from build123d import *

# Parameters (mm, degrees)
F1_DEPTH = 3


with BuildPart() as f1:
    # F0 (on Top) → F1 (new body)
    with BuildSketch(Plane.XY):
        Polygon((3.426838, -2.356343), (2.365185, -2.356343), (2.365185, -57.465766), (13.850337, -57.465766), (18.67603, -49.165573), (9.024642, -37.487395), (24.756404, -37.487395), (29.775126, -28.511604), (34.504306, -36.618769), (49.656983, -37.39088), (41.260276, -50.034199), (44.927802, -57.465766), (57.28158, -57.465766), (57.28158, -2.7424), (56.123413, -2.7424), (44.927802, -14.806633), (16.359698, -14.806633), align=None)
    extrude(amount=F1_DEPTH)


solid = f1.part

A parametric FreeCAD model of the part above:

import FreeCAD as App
import Part
import Sketcher
from FreeCAD import Vector
Q = App.Units.Quantity

doc = App.newDocument("Part")
body = doc.addObject("PartDesign::Body", "Body")

sketch1 = doc.addObject("Sketcher::SketchObject", "Sketch")
body.addObject(sketch1)
sketch1.AttachmentSupport = (doc.XY_Plane, [""])
sketch1.MapMode = "FlatFace"
sketch1.addGeometry(Part.LineSegment(Vector(3.426838, -2.356343, 0), Vector(2.365185, -2.356343, 0)), False)
sketch1.addGeometry(Part.LineSegment(Vector(2.365185, -2.356343, 0), Vector(2.365185, -57.465766, 0)), False)
sketch1.addGeometry(Part.LineSegment(Vector(2.365185, -57.465766, 0), Vector(13.850337, -57.465766, 0)), False)
sketch1.addGeometry(Part.LineSegment(Vector(13.850337, -57.465766, 0), Vector(18.67603, -49.165573, 0)), False)
sketch1.addGeometry(Part.LineSegment(Vector(18.67603, -49.165573, 0), Vector(9.024642, -37.487395, 0)), False)
sketch1.addGeometry(Part.LineSegment(Vector(9.024642, -37.487395, 0), Vector(24.756404, -37.487395, 0)), False)
sketch1.addGeometry(Part.LineSegment(Vector(24.756404, -37.487395, 0), Vector(29.775126, -28.511604, 0)), False)
sketch1.addGeometry(Part.LineSegment(Vector(29.775126, -28.511604, 0), Vector(34.504306, -36.618769, 0)), False)
sketch1.addGeometry(Part.LineSegment(Vector(34.504306, -36.618769, 0), Vector(49.656983, -37.39088, 0)), False)
sketch1.addGeometry(Part.LineSegment(Vector(49.656983, -37.39088, 0), Vector(41.260276, -50.034199, 0)), False)
sketch1.addGeometry(Part.LineSegment(Vector(41.260276, -50.034199, 0), Vector(44.927802, -57.465766, 0)), False)
sketch1.addGeometry(Part.LineSegment(Vector(44.927802, -57.465766, 0), Vector(57.28158, -57.465766, 0)), False)
sketch1.addGeometry(Part.LineSegment(Vector(57.28158, -57.465766, 0), Vector(57.28158, -2.7424, 0)), False)
sketch1.addGeometry(Part.LineSegment(Vector(57.28158, -2.7424, 0), Vector(56.123413, -2.7424, 0)), False)
sketch1.addGeometry(Part.LineSegment(Vector(56.123413, -2.7424, 0), Vector(44.927802, -14.806633, 0)), False)
sketch1.addGeometry(Part.LineSegment(Vector(44.927802, -14.806633, 0), Vector(16.359698, -14.806633, 0)), False)
sketch1.addGeometry(Part.LineSegment(Vector(16.359698, -14.806633, 0), Vector(3.426838, -2.356343, 0)), False)
sketch1.addConstraint(Sketcher.Constraint("Coincident", 0, 2, 1, 1))
sketch1.addConstraint(Sketcher.Constraint("Coincident", 1, 2, 2, 1))
sketch1.addConstraint(Sketcher.Constraint("Coincident", 2, 2, 3, 1))
sketch1.addConstraint(Sketcher.Constraint("Coincident", 3, 2, 4, 1))
sketch1.addConstraint(Sketcher.Constraint("Coincident", 4, 2, 5, 1))
sketch1.addConstraint(Sketcher.Constraint("Coincident", 5, 2, 6, 1))
sketch1.addConstraint(Sketcher.Constraint("Coincident", 6, 2, 7, 1))
sketch1.addConstraint(Sketcher.Constraint("Coincident", 7, 2, 8, 1))
sketch1.addConstraint(Sketcher.Constraint("Coincident", 8, 2, 9, 1))
sketch1.addConstraint(Sketcher.Constraint("Coincident", 9, 2, 10, 1))
sketch1.addConstraint(Sketcher.Constraint("Coincident", 10, 2, 11, 1))
sketch1.addConstraint(Sketcher.Constraint("Coincident", 11, 2, 12, 1))
sketch1.addConstraint(Sketcher.Constraint("Coincident", 12, 2, 13, 1))
sketch1.addConstraint(Sketcher.Constraint("Coincident", 13, 2, 14, 1))
sketch1.addConstraint(Sketcher.Constraint("Coincident", 14, 2, 15, 1))
sketch1.addConstraint(Sketcher.Constraint("Coincident", 15, 2, 16, 1))
sketch1.addConstraint(Sketcher.Constraint("Coincident", 16, 2, 0, 1))
sketch1.addConstraint(Sketcher.Constraint("Horizontal", 0))
sketch1.addConstraint(Sketcher.Constraint("Vertical", 1))
sketch1.addConstraint(Sketcher.Constraint("Horizontal", 2))
sketch1.addConstraint(Sketcher.Constraint("Horizontal", 5))
sketch1.addConstraint(Sketcher.Constraint("Horizontal", 11))
sketch1.addConstraint(Sketcher.Constraint("Vertical", 12))
sketch1.addConstraint(Sketcher.Constraint("Horizontal", 13))
sketch1.addConstraint(Sketcher.Constraint("Horizontal", 15))
sketch1.addConstraint(Sketcher.Constraint("Horizontal", 2, 2, 10, 2))
sketch1.addConstraint(Sketcher.Constraint("Vertical", 10, 2, 14, 2))
sketch1.addConstraint(Sketcher.Constraint("Distance", 6, Q("10.283598 mm")))
sketch1.addConstraint(Sketcher.Constraint("DistanceX", 2, 1, 2, 2, Q("11.485152 mm")))
sketch1.addConstraint(Sketcher.Constraint("DistanceY", 9, 2, -1, 1, Q("50.034199 mm")))
sketch1.addConstraint(Sketcher.Constraint("DistanceY", 12, 2, -1, 1, Q("2.7424 mm")))
sketch1.addConstraint(Sketcher.Constraint("DistanceX", -1, 1, 15, 2, Q("16.359698 mm")))
sketch1.addConstraint(Sketcher.Constraint("DistanceX", 5, 2, 10, 2, Q("20.171398 mm")))
sketch1.addConstraint(Sketcher.Constraint("Distance", 3, Q("9.601069 mm")))
sketch1.addConstraint(Sketcher.Constraint("Distance", 4, Q("15.150219 mm")))
sketch1.addConstraint(Sketcher.Constraint("Distance", 14, Q("16.458658 mm")))
sketch1.addConstraint(Sketcher.Constraint("Distance", 16, Q("17.951841 mm")))
sketch1.addConstraint(Sketcher.Constraint("DistanceX", 0, 2, 0, 1, Q("1.061653 mm")))
sketch1.addConstraint(Sketcher.Constraint("DistanceX", 5, 1, 5, 2, Q("15.731762 mm")))
sketch1.addConstraint(Sketcher.Constraint("DistanceX", 11, 1, 11, 2, Q("12.353778 mm")))
sketch1.addConstraint(Sketcher.Constraint("DistanceX", 13, 2, 13, 1, Q("1.158167 mm")))
sketch1.addConstraint(Sketcher.Constraint("DistanceX", 15, 2, 15, 1, Q("28.568104 mm")))
sketch1.addConstraint(Sketcher.Constraint("DistanceY", 1, 2, 1, 1, Q("55.109423 mm")))
sketch1.addConstraint(Sketcher.Constraint("DistanceY", 12, 1, 12, 2, Q("54.723366 mm")))
sketch1.addConstraint(Sketcher.Constraint("DistanceX", -1, 1, 3, 2, Q("18.67603 mm")))
sketch1.addConstraint(Sketcher.Constraint("DistanceY", 7, 2, -1, 1, Q("36.618769 mm")))
sketch1.addConstraint(Sketcher.Constraint("DistanceY", 8, 2, -1, 1, Q("37.39088 mm")))
sketch1.addConstraint(Sketcher.Constraint("DistanceY", 5, 2, 6, 2, Q("8.975791 mm")))
sketch1.addConstraint(Sketcher.Constraint("DistanceX", 6, 2, 7, 2, Q("4.72918 mm")))
sketch1.addConstraint(Sketcher.Constraint("DistanceX", 5, 2, 8, 2, Q("24.900579 mm")))
sketch1.addConstraint(Sketcher.Constraint("DistanceX", 7, 2, 9, 2, Q("6.75597 mm")))
pad1 = doc.addObject("PartDesign::Pad", "Pad")
body.addObject(pad1)
pad1.Profile = sketch1
pad1.Length = 3

doc.recompute()
